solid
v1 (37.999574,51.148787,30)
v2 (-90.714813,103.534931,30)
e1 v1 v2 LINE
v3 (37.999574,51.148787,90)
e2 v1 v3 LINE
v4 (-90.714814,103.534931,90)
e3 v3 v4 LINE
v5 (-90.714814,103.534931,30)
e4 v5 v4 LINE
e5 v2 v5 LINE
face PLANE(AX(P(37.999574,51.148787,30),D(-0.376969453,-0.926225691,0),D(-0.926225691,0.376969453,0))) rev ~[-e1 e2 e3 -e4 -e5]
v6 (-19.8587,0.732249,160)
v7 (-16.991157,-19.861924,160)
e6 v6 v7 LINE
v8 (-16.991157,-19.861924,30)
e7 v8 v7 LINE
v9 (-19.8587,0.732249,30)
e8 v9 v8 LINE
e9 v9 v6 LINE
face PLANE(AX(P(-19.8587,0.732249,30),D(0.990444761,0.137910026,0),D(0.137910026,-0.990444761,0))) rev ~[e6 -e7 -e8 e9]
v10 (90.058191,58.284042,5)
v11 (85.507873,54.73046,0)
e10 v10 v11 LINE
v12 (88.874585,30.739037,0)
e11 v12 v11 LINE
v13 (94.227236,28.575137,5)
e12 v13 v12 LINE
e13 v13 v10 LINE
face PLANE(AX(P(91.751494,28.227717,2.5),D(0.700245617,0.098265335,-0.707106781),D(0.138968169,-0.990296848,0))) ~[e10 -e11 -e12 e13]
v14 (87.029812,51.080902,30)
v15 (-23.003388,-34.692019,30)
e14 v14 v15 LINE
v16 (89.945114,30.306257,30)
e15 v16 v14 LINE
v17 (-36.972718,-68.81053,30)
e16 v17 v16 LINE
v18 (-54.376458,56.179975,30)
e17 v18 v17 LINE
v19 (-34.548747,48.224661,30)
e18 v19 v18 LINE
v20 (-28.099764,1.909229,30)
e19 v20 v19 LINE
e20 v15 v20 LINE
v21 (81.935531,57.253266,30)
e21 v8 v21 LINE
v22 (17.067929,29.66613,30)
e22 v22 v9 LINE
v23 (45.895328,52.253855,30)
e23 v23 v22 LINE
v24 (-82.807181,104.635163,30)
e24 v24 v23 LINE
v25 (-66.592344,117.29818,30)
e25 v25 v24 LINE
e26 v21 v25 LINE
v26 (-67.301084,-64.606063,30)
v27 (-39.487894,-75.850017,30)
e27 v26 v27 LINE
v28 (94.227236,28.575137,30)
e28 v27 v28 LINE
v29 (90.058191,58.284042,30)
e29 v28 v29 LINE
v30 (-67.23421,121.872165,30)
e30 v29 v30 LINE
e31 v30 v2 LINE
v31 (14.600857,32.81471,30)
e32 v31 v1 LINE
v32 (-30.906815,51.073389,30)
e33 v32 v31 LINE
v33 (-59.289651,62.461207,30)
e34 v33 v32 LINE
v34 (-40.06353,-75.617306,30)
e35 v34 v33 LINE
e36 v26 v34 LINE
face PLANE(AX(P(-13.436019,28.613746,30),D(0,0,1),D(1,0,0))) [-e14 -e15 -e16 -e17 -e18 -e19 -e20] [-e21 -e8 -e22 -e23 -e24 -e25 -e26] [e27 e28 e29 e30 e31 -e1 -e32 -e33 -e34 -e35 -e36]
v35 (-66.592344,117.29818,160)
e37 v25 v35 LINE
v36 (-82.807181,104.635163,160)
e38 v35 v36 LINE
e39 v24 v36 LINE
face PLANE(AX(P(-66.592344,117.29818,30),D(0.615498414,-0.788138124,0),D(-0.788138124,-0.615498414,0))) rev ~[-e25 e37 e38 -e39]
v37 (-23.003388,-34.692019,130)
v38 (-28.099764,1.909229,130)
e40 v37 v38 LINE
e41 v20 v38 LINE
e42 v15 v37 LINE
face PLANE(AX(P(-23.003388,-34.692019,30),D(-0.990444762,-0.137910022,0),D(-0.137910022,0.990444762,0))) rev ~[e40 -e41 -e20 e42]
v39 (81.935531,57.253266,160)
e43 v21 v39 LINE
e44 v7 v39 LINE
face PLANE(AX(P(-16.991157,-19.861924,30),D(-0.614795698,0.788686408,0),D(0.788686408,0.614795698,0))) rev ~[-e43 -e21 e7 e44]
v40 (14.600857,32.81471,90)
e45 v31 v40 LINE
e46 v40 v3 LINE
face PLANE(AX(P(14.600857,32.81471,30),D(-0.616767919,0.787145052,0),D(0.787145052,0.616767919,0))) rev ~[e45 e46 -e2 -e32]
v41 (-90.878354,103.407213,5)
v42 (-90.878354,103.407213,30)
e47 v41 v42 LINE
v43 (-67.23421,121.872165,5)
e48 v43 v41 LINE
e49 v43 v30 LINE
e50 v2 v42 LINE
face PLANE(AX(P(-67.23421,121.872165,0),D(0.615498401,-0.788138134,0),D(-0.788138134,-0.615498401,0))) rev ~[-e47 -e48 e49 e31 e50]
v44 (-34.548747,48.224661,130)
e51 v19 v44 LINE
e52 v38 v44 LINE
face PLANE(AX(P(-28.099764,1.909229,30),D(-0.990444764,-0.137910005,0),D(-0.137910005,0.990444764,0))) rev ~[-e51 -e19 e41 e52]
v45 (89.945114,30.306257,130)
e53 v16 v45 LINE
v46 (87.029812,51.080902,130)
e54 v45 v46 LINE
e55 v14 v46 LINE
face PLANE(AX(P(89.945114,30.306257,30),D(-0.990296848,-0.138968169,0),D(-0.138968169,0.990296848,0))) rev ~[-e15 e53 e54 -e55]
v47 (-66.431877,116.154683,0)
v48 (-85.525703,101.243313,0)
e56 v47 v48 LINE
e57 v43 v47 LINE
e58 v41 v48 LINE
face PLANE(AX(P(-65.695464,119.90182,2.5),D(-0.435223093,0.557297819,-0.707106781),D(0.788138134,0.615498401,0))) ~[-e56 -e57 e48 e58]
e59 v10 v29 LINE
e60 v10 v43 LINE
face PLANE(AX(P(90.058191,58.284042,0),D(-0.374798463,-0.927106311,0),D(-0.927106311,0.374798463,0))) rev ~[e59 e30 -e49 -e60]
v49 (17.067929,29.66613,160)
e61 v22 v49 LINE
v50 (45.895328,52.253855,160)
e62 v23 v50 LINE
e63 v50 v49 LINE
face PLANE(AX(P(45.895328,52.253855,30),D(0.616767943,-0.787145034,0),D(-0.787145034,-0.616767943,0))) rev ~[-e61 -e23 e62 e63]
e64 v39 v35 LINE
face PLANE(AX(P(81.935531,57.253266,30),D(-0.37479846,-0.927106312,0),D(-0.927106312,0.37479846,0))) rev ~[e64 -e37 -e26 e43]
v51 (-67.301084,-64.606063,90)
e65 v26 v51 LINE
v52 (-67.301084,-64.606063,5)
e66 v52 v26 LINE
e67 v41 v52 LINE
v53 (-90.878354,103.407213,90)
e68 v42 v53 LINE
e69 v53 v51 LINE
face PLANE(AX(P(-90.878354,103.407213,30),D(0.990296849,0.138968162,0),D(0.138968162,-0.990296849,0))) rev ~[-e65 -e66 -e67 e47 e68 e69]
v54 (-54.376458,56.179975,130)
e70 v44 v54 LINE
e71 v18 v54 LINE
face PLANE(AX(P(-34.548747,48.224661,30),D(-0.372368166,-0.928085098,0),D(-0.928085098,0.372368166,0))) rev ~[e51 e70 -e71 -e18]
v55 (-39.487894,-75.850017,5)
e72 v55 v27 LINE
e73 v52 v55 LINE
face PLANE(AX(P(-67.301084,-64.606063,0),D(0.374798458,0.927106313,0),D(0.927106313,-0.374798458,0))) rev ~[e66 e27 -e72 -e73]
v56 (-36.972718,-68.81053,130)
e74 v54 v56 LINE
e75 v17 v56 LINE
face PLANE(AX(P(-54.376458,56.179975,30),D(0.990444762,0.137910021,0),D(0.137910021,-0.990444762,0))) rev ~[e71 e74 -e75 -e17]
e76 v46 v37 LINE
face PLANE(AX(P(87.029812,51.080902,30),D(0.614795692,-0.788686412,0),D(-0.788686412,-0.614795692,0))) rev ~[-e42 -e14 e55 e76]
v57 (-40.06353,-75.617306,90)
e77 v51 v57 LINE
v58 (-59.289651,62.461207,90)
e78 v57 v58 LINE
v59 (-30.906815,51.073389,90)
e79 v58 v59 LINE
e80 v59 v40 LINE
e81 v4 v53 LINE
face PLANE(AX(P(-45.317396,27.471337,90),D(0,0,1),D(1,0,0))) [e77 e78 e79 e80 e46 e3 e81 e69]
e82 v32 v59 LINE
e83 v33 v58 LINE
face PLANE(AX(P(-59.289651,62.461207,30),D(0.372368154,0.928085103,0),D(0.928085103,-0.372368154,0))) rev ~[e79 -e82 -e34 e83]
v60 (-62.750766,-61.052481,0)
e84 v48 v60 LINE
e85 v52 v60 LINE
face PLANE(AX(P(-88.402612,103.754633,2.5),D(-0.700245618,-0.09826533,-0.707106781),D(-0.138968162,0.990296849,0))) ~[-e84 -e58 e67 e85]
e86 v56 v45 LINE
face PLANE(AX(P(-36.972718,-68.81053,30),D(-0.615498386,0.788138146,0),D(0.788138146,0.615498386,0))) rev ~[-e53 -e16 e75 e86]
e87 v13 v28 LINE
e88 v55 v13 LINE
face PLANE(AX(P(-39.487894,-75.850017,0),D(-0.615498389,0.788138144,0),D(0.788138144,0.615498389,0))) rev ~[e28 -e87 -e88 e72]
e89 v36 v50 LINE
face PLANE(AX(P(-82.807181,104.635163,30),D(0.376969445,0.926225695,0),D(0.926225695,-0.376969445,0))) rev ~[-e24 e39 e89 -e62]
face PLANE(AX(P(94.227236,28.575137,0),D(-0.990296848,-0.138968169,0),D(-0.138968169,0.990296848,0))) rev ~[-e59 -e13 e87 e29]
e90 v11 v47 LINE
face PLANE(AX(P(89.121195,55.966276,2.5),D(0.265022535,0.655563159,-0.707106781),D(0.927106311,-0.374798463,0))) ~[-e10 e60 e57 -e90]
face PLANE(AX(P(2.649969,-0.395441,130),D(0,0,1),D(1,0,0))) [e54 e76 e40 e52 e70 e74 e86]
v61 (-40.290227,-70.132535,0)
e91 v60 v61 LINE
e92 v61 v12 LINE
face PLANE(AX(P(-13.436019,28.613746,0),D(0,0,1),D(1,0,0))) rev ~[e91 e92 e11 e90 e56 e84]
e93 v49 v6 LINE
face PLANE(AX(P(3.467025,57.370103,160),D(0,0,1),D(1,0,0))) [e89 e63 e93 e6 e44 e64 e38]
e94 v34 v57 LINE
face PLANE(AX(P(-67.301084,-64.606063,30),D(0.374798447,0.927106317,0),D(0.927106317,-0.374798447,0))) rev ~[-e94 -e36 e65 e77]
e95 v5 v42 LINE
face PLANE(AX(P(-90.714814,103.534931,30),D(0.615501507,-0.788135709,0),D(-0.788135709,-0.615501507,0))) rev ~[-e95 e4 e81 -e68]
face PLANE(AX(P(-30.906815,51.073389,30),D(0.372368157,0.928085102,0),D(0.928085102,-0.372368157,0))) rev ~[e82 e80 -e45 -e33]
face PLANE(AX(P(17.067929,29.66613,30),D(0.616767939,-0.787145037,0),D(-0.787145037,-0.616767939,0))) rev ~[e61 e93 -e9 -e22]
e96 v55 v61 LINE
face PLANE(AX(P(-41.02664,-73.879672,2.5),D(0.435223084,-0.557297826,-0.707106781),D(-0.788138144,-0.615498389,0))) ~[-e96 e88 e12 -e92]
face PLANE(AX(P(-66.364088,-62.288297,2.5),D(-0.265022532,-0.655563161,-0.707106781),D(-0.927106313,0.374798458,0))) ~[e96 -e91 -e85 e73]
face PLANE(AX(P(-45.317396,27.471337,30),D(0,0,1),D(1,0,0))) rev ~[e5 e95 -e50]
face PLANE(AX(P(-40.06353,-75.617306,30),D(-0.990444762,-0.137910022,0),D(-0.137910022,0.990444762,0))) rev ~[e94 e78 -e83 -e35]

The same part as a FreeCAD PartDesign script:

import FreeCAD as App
import Part
import Sketcher

V = App.Vector
Q = App.Units.Quantity


def edges_at(feature, points):
    """Names of the edges that pass closest to the given points."""
    edges = feature.Shape.Edges
    near = lambda p: min(range(len(edges)), key=lambda i: edges[i].distToShape(Part.Vertex(*p))[0])
    return sorted({f"Edge{near(p) + 1}" for p in points})


def add_polygon(sketch, points):
    """Adds a closed chain of lines whose ends are joined by coincident constraints."""
    first, n = sketch.GeometryCount, len(points)
    for a, b in zip(points, points[1:] + points[:1]):
        sketch.addGeometry(Part.LineSegment(App.Vector(*a, 0), App.Vector(*b, 0)), False)
    for i in range(n):
        sketch.addConstraint(Sketcher.Constraint("Coincident", first + i, 2, first + (i + 1) % n, 1))

doc = App.newDocument("Part")
params = doc.addObject("Spreadsheet::Sheet", "Params")
for row, (alias, value) in enumerate([
    ("sketch1_length", "30 mm"),
    ("pad1_length", "30 mm"),
    ("pad2_length", "60 mm"),
    ("pad3_length", "100 mm"),
    ("pad4_length", "130 mm"),
    ("chamfer_size", "5 mm"),
], start=1):
    params.set(f"A{row}", alias)
    params.set(f"B{row}", "=" + value)
    params.setAlias(f"B{row}", alias)

body = doc.addObject("PartDesign::Body", "Body")

# Sketch on XY plane
sketch1 = doc.addObject("Sketcher::SketchObject", "Sketch")
body.addObject(sketch1)
sketch1.AttachmentSupport = (doc.XY_Plane, [""])
sketch1.MapMode = "FlatFace"
add_polygon(sketch1, [(-39, -76), (94, 29), (90, 58), (-67, 122), (-91, 103), (-67, -65)])  # lines 0-5
sketch1.addConstraint(Sketcher.Constraint("Parallel", 0, 3))
sketch1.addConstraint(Sketcher.Constraint("Parallel", 1, 4))
sketch1.addConstraint(Sketcher.Constraint("Parallel", 2, 5))
sketch1.addConstraint(Sketcher.Constraint("Equal", 0, 2))
sketch1.addConstraint(Sketcher.Constraint("Equal", 1, 3))
sketch1.addConstraint(Sketcher.Constraint("Equal", 2, 4))
sketch1.addConstraint(Sketcher.Constraint("Equal", 3, 5))
sketch1.addConstraint(Sketcher.Constraint("Distance", 1, Q("30 mm")))
sketch1.addConstraint(Sketcher.Constraint("DistanceX", 2, 2, 1, 2, Q("157.292401 mm")))
sketch1.addConstraint(Sketcher.Constraint("DistanceY", 4, 2, 0, 2, Q("93.1812 mm")))
sketch1.addConstraint(Sketcher.Constraint("DistanceX", -1, 1, 1, 2, Q("90.058191 mm")))
sketch1.addConstraint(Sketcher.Constraint("DistanceY", -1, 1, 0, 2, Q("28.575137 mm")))
sketch1.setExpression("Constraints[13]", "Params.sketch1_length")
pad1 = doc.addObject("PartDesign::Pad", "Pad")
body.addObject(pad1)
pad1.Profile = sketch1
pad1.setExpression("Length", "Params.pad1_length")

# Sketch on XY plane
sketch2 = doc.addObject("Sketcher::SketchObject", "Sketch001")
body.addObject(sketch2)
sketch2.AttachmentSupport = (doc.XY_Plane, [""])
sketch2.MapMode = "FlatFace"
sketch2.AttachmentOffset = App.Placement(V(0, 0, 30), App.Rotation())
add_polygon(sketch2, [(14.6, 32.81), (38, 51.15), (-90.71, 103.53), (-90.88, 103.41), (-67.3, -64.61), (-40.06, -75.62), (-59.29, 62.46), (-30.91, 51.07)])  # lines 0-7
sketch2.addConstraint(Sketcher.Constraint("Parallel", 6, 7))
sketch2.addConstraint(Sketcher.Constraint("DistanceX", 1, 2, 6, 2, Q("59.807999 mm")))
sketch2.addConstraint(Sketcher.Constraint("Distance", 1, Q("138.966549 mm")))
sketch2.addConstraint(Sketcher.Constraint("Distance", 6, Q("30.582148 mm")))
sketch2.addConstraint(Sketcher.Constraint("DistanceY", -1, 1, 1, 2, Q("103.534931 mm")))
sketch2.addConstraint(Sketcher.Constraint("DistanceX", 4, 2, -1, 1, Q("40.06353 mm")))
sketch2.addConstraint(Sketcher.Constraint("DistanceX", 5, 2, -1, 1, Q("59.289651 mm")))
sketch2.addConstraint(Sketcher.Constraint("DistanceY", -1, 1, 6, 2, Q("51.073389 mm")))
sketch2.addConstraint(Sketcher.Constraint("DistanceY", -1, 1, 7, 2, Q("32.81471 mm")))
sketch2.addConstraint(Sketcher.Constraint("DistanceX", 1, 2, 0, 2, Q("128.714388 mm")))
sketch2.addConstraint(Sketcher.Constraint("DistanceX", 2, 2, 1, 2, Q("0.16354 mm")))
sketch2.addConstraint(Sketcher.Constraint("DistanceY", 2, 2, 1, 2, Q("0.127718 mm")))
sketch2.addConstraint(Sketcher.Constraint("DistanceX", 3, 2, 0, 2, Q("105.300658 mm")))
sketch2.addConstraint(Sketcher.Constraint("DistanceY", 3, 2, 0, 2, Q("115.75485 mm")))
sketch2.addConstraint(Sketcher.Constraint("DistanceY", 4, 2, 2, 2, Q("179.024519 mm")))
sketch2.addConstraint(Sketcher.Constraint("DistanceY", 0, 2, 5, 2, Q("11.31242 mm")))
pad2 = doc.addObject("PartDesign::Pad", "Pad001")
body.addObject(pad2)
pad2.Profile = sketch2
pad2.setExpression("Length", "Params.pad2_length")

# Sketch on XY plane
sketch3 = doc.addObject("Sketcher::SketchObject", "Sketch002")
body.addObject(sketch3)
sketch3.AttachmentSupport = (doc.XY_Plane, [""])
sketch3.MapMode = "FlatFace"
sketch3.AttachmentOffset = App.Placement(V(0, 0, 30), App.Rotation())
add_polygon(sketch3, [(87, 51), (-23, -35), (-28, 2), (-35, 48), (-54, 56), (-37, -69), (90, 30)])  # lines 0-6
sketch3.addConstraint(Sketcher.Constraint("Parallel", 1, 2))
sketch3.addConstraint(Sketcher.Constraint("Parallel", 2, 4))
sketch3.addConstraint(Sketcher.Constraint("Distance", 6, Q("20.9782 mm")))
sketch3.addConstraint(Sketcher.Constraint("DistanceX", 6, 2, 5, 2, Q("2.915302 mm")))
sketch3.addConstraint(Sketcher.Constraint("DistanceX", 0, 2, 6, 2, Q("110.0332 mm")))
sketch3.addConstraint(Sketcher.Constraint("Distance", 3, Q("21.364109 mm")))
sketch3.addConstraint(Sketcher.Constraint("Distance", 4, Q("126.196341 mm")))
sketch3.addConstraint(Sketcher.Constraint("DistanceX", 0, 2, -1, 1, Q("23.003388 mm")))
sketch3.addConstraint(Sketcher.Constraint("DistanceY", 0, 2, -1, 1, Q("34.692019 mm")))
sketch3.addConstraint(Sketcher.Constraint("DistanceY", -1, 1, 1, 2, Q("1.909229 mm")))
sketch3.addConstraint(Sketcher.Constraint("DistanceY", -1, 1, 2, 2, Q("48.224661 mm")))
sketch3.addConstraint(Sketcher.Constraint("DistanceY", 4, 2, -1, 1, Q("68.81053 mm")))
sketch3.addConstraint(Sketcher.Constraint("DistanceX", 2, 2, 0, 2, Q("11.545359 mm")))
sketch3.addConstraint(Sketcher.Constraint("DistanceY", 5, 2, 3, 2, Q("25.873718 mm")))
pad3 = doc.addObject("PartDesign::Pad", "Pad002")
body.addObject(pad3)
pad3.Profile = sketch3
pad3.setExpression("Length", "Params.pad3_length")

# Sketch on XY plane
sketch4 = doc.addObject("Sketcher::SketchObject", "Sketch003")
body.addObject(sketch4)
sketch4.AttachmentSupport = (doc.XY_Plane, [""])
sketch4.MapMode = "FlatFace"
sketch4.AttachmentOffset = App.Placement(V(0, 0, 30), App.Rotation())
add_polygon(sketch4, [(17, 30), (-20, 1), (-17, -20), (82, 57), (-67, 117), (-83, 105), (46, 52)])  # lines 0-6
sketch4.addConstraint(Sketcher.Constraint("Parallel", 0, 6))
sketch4.addConstraint(Sketcher.Constraint("Distance", 4, Q("20.573598 mm")))
sketch4.addConstraint(Sketcher.Constraint("DistanceX", 0, 2, -1, 1, Q("19.8587 mm")))
sketch4.addConstraint(Sketcher.Constraint("DistanceX", 6, 2, 5, 2, Q("28.827399 mm")))
sketch4.addConstraint(Sketcher.Constraint("Distance", 2, Q("125.432221 mm")))
sketch4.addConstraint(Sketcher.Constraint("Distance", 3, Q("160.205872 mm")))
sketch4.addConstraint(Sketcher.Constraint("Distance", 6, Q("36.622729 mm")))
sketch4.addConstraint(Sketcher.Constraint("DistanceY", -1, 1, 0, 2, Q("0.732249 mm")))
sketch4.addConstraint(Sketcher.Constraint("DistanceX", -1, 1, 2, 2, Q("81.935531 mm")))
sketch4.addConstraint(Sketcher.Constraint("DistanceY", -1, 1, 3, 2, Q("117.29818 mm")))
sketch4.addConstraint(Sketcher.Constraint("DistanceX", 4, 2, -1, 1, Q("82.807181 mm")))
sketch4.addConstraint(Sketcher.Constraint("DistanceX", -1, 1, 6, 2, Q("17.067929 mm")))
sketch4.addConstraint(Sketcher.Constraint("DistanceX", 1, 2, 2, 2, Q("98.926688 mm")))
sketch4.addConstraint(Sketcher.Constraint("DistanceY", 5, 2, 2, 2, Q("4.999411 mm")))
pad4 = doc.addObject("PartDesign::Pad", "Pad003")
body.addObject(pad4)
pad4.Profile = sketch4
pad4.setExpression("Length", "Params.pad4_length")
doc.recompute()

chamfer = doc.addObject("PartDesign::Chamfer", "Chamfer")
body.addObject(chamfer)
chamfer.Base = (pad4, edges_at(pad4, [
    (11.412, 90.078, 0),
    (92.143, 43.43, 0),
    (27.37, -23.637, 0),
    (-79.056, 112.64, 0),
    (-79.09, 19.401, 0),
    (-53.394, -70.228, 0),
]))
chamfer.setExpression("Size", "Params.chamfer_size")

doc.recompute()
